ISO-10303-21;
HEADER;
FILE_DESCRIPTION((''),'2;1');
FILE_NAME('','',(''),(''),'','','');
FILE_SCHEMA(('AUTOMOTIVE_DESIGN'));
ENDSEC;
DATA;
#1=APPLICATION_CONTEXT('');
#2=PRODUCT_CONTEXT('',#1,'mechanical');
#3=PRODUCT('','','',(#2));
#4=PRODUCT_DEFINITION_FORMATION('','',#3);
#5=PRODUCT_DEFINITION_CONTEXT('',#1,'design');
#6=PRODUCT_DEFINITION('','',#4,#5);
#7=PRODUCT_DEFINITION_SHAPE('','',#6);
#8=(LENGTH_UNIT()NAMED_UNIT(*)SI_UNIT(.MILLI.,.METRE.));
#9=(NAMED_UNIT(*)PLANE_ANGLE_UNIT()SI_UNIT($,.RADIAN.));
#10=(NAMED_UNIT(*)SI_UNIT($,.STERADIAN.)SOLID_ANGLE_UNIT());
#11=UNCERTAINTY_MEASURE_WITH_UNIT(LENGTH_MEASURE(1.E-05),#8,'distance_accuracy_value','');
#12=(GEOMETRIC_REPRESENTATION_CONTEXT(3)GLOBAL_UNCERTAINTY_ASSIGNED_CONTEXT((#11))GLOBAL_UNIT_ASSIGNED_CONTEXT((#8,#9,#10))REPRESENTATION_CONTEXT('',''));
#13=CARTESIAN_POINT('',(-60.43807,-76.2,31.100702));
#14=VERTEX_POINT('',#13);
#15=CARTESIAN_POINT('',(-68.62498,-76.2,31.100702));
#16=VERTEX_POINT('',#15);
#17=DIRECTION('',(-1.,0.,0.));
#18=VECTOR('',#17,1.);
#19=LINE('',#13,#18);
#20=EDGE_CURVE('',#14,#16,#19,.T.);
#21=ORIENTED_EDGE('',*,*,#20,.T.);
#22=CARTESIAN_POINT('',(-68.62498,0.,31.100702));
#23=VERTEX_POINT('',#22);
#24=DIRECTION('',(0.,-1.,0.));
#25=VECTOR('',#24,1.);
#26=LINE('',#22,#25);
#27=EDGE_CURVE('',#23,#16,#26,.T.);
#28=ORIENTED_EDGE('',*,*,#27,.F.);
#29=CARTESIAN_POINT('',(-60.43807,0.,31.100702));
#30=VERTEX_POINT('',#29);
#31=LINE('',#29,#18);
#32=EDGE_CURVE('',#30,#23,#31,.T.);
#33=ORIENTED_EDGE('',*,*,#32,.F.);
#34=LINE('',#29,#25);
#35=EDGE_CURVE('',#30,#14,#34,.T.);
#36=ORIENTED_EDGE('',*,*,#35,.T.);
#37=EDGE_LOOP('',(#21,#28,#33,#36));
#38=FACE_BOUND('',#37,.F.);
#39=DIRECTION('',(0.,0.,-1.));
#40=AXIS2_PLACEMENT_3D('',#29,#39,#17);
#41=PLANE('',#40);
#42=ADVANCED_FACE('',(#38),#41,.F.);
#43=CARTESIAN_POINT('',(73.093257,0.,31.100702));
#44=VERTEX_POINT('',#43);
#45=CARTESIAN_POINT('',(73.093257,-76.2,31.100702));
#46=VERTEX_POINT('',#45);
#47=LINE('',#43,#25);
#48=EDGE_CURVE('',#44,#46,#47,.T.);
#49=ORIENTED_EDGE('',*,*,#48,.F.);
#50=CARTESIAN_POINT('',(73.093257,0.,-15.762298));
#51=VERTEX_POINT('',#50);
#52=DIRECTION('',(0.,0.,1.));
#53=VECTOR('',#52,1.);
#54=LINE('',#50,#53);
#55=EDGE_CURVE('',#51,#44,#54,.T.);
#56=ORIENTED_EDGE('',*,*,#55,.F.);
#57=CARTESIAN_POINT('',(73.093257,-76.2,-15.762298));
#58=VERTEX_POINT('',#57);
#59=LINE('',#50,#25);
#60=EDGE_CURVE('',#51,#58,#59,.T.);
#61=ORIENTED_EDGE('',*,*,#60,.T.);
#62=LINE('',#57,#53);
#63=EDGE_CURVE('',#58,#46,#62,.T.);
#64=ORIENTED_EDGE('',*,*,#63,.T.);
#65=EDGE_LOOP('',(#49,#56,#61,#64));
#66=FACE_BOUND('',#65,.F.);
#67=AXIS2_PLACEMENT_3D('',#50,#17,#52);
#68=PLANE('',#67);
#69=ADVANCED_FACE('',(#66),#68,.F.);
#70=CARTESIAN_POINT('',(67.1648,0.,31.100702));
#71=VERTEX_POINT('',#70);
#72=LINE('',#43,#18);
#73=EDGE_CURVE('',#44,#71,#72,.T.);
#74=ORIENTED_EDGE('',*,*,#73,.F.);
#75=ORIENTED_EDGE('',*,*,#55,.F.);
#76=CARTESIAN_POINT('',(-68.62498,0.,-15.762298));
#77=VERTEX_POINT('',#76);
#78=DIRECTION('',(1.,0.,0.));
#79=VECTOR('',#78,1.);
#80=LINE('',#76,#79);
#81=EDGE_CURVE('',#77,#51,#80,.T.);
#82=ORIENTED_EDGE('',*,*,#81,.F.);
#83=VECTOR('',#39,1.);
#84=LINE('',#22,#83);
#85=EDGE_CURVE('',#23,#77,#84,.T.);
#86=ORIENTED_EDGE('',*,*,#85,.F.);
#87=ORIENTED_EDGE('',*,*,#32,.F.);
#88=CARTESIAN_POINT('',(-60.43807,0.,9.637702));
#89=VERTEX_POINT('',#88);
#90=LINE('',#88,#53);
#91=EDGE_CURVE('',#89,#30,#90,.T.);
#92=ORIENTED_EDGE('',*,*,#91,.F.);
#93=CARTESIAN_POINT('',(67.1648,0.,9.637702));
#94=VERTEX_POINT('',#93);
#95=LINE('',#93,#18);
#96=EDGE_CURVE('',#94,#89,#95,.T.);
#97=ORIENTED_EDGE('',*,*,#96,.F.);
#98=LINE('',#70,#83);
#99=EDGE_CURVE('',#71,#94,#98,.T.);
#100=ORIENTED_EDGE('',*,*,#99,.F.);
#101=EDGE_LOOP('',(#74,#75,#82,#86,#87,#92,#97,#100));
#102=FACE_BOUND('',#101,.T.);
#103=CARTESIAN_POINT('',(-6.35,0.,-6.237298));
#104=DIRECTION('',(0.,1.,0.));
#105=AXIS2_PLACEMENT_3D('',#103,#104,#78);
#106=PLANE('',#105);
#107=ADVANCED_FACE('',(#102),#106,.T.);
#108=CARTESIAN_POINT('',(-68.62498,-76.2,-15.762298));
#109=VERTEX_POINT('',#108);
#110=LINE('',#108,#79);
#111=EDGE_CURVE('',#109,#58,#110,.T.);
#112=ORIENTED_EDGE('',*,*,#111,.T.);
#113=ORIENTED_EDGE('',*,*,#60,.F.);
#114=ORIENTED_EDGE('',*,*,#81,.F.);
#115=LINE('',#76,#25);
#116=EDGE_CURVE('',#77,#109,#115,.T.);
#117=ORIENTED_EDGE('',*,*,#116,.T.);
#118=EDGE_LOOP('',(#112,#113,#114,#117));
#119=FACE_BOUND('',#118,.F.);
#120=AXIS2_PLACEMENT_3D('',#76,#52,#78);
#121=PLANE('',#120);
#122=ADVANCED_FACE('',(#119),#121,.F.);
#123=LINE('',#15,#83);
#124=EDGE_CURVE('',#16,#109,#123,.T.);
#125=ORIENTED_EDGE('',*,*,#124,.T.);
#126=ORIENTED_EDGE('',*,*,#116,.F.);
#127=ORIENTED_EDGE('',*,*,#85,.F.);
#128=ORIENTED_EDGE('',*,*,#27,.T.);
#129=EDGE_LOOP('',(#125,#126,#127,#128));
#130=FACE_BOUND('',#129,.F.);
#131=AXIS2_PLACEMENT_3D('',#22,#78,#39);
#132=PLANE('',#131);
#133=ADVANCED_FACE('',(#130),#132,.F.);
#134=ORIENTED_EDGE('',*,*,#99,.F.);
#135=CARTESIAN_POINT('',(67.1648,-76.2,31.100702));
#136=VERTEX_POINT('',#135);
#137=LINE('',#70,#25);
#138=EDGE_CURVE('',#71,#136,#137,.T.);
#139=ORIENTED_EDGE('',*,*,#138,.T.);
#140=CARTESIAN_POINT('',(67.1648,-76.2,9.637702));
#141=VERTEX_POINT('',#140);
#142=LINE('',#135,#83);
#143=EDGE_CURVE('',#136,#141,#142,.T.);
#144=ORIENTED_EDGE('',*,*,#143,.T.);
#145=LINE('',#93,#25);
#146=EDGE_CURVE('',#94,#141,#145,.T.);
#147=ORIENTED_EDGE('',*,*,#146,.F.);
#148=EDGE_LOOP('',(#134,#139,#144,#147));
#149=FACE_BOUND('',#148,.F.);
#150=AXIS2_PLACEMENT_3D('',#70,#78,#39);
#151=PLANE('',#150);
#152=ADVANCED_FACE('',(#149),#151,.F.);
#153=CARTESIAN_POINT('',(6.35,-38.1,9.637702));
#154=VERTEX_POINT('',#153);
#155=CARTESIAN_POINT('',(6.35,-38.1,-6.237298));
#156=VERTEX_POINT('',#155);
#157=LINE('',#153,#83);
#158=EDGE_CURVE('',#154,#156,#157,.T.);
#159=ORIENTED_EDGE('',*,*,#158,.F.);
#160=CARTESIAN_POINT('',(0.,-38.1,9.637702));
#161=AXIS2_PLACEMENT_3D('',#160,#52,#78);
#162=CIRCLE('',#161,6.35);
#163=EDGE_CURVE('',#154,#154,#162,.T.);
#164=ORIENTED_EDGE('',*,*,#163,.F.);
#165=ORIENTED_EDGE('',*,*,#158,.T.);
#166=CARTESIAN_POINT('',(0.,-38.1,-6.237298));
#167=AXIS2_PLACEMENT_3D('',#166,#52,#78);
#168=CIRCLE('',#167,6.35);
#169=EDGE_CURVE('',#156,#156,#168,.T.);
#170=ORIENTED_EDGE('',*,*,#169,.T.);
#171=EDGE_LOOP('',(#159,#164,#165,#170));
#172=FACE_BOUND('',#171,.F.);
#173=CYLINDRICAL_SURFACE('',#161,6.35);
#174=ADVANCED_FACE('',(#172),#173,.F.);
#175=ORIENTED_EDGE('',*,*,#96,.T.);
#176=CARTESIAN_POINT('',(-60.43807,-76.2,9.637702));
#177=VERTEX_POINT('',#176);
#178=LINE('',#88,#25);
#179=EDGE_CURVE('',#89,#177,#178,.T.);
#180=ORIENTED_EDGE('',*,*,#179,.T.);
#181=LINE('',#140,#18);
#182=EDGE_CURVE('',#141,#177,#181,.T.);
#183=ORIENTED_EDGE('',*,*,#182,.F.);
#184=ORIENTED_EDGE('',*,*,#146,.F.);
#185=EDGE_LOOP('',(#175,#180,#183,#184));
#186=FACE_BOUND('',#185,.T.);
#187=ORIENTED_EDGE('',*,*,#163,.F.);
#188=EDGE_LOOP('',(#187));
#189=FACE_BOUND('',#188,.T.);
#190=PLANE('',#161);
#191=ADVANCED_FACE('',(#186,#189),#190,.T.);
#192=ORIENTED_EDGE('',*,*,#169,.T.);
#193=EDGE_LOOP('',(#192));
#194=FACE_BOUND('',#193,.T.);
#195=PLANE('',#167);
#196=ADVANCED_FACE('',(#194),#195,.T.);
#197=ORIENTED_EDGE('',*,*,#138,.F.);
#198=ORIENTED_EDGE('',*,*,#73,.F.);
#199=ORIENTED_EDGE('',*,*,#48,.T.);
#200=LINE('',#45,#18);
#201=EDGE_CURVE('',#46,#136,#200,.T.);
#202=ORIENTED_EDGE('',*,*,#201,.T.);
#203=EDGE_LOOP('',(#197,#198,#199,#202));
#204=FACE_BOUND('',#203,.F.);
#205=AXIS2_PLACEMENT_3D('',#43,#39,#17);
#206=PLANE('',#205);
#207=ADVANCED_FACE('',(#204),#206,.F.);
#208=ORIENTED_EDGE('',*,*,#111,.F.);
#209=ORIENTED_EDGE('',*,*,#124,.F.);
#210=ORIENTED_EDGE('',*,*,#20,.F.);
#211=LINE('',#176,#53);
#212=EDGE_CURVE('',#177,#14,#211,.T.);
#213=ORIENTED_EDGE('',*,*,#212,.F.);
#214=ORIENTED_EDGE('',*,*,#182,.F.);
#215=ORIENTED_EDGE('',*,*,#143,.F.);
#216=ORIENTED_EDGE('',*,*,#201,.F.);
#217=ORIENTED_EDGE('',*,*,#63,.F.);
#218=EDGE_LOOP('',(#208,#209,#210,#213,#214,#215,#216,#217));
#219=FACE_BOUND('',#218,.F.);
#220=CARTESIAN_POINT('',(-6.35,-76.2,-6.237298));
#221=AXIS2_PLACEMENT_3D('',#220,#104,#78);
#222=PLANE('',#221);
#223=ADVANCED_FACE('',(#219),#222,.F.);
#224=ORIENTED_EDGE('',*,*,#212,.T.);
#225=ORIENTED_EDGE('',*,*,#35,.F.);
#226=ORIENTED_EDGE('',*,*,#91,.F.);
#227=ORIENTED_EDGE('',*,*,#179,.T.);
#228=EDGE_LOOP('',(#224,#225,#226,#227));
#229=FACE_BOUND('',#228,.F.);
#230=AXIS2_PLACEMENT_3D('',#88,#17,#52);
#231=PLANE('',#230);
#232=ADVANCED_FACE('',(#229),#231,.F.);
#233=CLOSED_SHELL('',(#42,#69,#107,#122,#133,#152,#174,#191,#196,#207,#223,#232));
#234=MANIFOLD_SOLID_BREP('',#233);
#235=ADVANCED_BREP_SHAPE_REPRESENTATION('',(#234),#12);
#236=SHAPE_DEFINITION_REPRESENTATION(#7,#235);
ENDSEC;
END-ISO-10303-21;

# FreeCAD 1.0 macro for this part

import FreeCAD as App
import Part
import Sketcher
from FreeCAD import Vector
Q = App.Units.Quantity

doc = App.newDocument("Part")
body = doc.addObject("PartDesign::Body", "Body")

# Sketch on XZ plane
sketch1 = body.newObject("Sketcher::SketchObject", "Sketch")
sketch1.AttachmentSupport = (doc.getObject("XZ_Plane"), [""])
sketch1.MapMode = "FlatFace"
sketch1.addGeometry([
    Part.LineSegment(Vector(-60, 31, 0), Vector(-69, 31, 0)),  # 0
    Part.LineSegment(Vector(-69, 31, 0), Vector(-69, -16, 0)),  # 1
    Part.LineSegment(Vector(-69, -16, 0), Vector(73, -16, 0)),  # 2
    Part.LineSegment(Vector(73, -16, 0), Vector(73, 31, 0)),  # 3
    Part.LineSegment(Vector(73, 31, 0), Vector(67, 31, 0)),  # 4
    Part.LineSegment(Vector(67, 31, 0), Vector(67, 10, 0)),  # 5
    Part.LineSegment(Vector(67, 10, 0), Vector(6, 10, 0)),  # 6
    Part.LineSegment(Vector(6, 10, 0), Vector(6, -6, 0)),  # 7
    Part.LineSegment(Vector(6, -6, 0), Vector(-6, -6, 0)),  # 8
    Part.LineSegment(Vector(-6, -6, 0), Vector(-6, 10, 0)),  # 9
    Part.LineSegment(Vector(-6, 10, 0), Vector(-60, 10, 0)),  # 10
    Part.LineSegment(Vector(-60, 10, 0), Vector(-60, 31, 0)),  # 11
], False)
sketch1.addConstraint([
    Sketcher.Constraint("Coincident", 0, 2, 1, 1),
    Sketcher.Constraint("Coincident", 1, 2, 2, 1),
    Sketcher.Constraint("Coincident", 2, 2, 3, 1),
    Sketcher.Constraint("Coincident", 3, 2, 4, 1),
    Sketcher.Constraint("Coincident", 4, 2, 5, 1),
    Sketcher.Constraint("Coincident", 5, 2, 6, 1),
    Sketcher.Constraint("Coincident", 6, 2, 7, 1),
    Sketcher.Constraint("Coincident", 7, 2, 8, 1),
    Sketcher.Constraint("Coincident", 8, 2, 9, 1),
    Sketcher.Constraint("Coincident", 9, 2, 10, 1),
    Sketcher.Constraint("Coincident", 10, 2, 11, 1),
    Sketcher.Constraint("Coincident", 11, 2, 0, 1),
    Sketcher.Constraint("Horizontal", 0),
    Sketcher.Constraint("Vertical", 1),
    Sketcher.Constraint("Horizontal", 2),
    Sketcher.Constraint("Vertical", 3),
    Sketcher.Constraint("Horizontal", 4),
    Sketcher.Constraint("Vertical", 5),
    Sketcher.Constraint("Horizontal", 6),
    Sketcher.Constraint("Vertical", 7),
    Sketcher.Constraint("Horizontal", 8),
    Sketcher.Constraint("Vertical", 9),
    Sketcher.Constraint("Horizontal", 10),
    Sketcher.Constraint("Vertical", 11),
    Sketcher.Constraint("Symmetric", 6, 2, 9, 2, -2),
    Sketcher.Constraint("Horizontal", 0, 2, 3, 2),
    Sketcher.Constraint("DistanceX", 8, 2, 8, 1, Q("0.5 in")),
    Sketcher.Constraint("DistanceY", 2, 2, 5, 2, Q("1 in")),
    Sketcher.Constraint("DistanceY", 1, 2, 1, 1, Q("1.845 in")),
    Sketcher.Constraint("DistanceY", 7, 2, 7, 1, Q("0.625 in")),
    Sketcher.Constraint("DistanceX", 6, 2, 6, 1, Q("60.8148 mm")),
    Sketcher.Constraint("DistanceX", 0, 2, 0, 1, Q("8.18691 mm")),
    Sketcher.Constraint("DistanceX", 10, 2, 10, 1, Q("54.08807 mm")),
    Sketcher.Constraint("DistanceY", -1, 1, 0, 2, Q("31.100702 mm")),
    Sketcher.Constraint("DistanceX", 2, 1, 2, 2, Q("141.718237 mm")),
])
pad1 = body.newObject("PartDesign::Pad", "Pad")
pad1.Profile = sketch1
pad1.Length = Q("3 in")

# Sketch on XY plane
sketch2 = body.newObject("Sketcher::SketchObject", "Sketch001")
sketch2.AttachmentSupport = (doc.getObject("XY_Plane"), [""])
sketch2.MapMode = "FlatFace"
sketch2.AttachmentOffset = App.Placement(Vector(0, 0, -6.237298), App.Rotation())
sketch2.addGeometry([
    Part.LineSegment(Vector(-6, 0, 0), Vector(-6, -76, 0)),
    Part.LineSegment(Vector(-6, -76, 0), Vector(6, -76, 0)),
    Part.LineSegment(Vector(6, -76, 0), Vector(6, 0, 0)),
    Part.LineSegment(Vector(6, 0, 0), Vector(-6, 0, 0)),
], False)
sketch2.addConstraint([
    Sketcher.Constraint("Coincident", 0, 2, 1, 1),
    Sketcher.Constraint("Coincident", 1, 2, 2, 1),
    Sketcher.Constraint("Coincident", 2, 2, 3, 1),
    Sketcher.Constraint("Coincident", 3, 2, 0, 1),
    Sketcher.Constraint("Vertical", 0),
    Sketcher.Constraint("Horizontal", 1),
    Sketcher.Constraint("Vertical", 2),
    Sketcher.Constraint("Horizontal", 3),
    Sketcher.Constraint("Symmetric", 2, 2, 3, 2, -1, 1),
    Sketcher.Constraint("DistanceY", 0, 2, 0, 1, Q("3 in")),
    Sketcher.Constraint("DistanceX", 1, 1, 1, 2, Q("0.5 in")),
])
pad2 = body.newObject("PartDesign::Pad", "Pad001")
pad2.Profile = sketch2
pad2.Length = Q("0.625 in")

# Sketch on XY plane
sketch3 = body.newObject("Sketcher::SketchObject", "Sketch002")
sketch3.AttachmentSupport = (doc.getObject("XY_Plane"), [""])
sketch3.MapMode = "FlatFace"
sketch3.AttachmentOffset = App.Placement(Vector(0, 0, 9.637702), App.Rotation())
sketch3.addGeometry(Part.Circle(Vector(0, -38, 0), Vector(0, 0, 1), 6), False)
sketch3.addConstraint([
    Sketcher.Constraint("PointOnObject", 0, 3, -2),
    Sketcher.Constraint("Diameter", 0, Q("0.5 in")),
    Sketcher.Constraint("DistanceY", 0, 3, -1, 1, Q("1.5 in")),
])
pocket1 = body.newObject("PartDesign::Pocket", "Pocket")
pocket1.Profile = sketch3
pocket1.Length = Q("0.625 in")

doc.recompute()
